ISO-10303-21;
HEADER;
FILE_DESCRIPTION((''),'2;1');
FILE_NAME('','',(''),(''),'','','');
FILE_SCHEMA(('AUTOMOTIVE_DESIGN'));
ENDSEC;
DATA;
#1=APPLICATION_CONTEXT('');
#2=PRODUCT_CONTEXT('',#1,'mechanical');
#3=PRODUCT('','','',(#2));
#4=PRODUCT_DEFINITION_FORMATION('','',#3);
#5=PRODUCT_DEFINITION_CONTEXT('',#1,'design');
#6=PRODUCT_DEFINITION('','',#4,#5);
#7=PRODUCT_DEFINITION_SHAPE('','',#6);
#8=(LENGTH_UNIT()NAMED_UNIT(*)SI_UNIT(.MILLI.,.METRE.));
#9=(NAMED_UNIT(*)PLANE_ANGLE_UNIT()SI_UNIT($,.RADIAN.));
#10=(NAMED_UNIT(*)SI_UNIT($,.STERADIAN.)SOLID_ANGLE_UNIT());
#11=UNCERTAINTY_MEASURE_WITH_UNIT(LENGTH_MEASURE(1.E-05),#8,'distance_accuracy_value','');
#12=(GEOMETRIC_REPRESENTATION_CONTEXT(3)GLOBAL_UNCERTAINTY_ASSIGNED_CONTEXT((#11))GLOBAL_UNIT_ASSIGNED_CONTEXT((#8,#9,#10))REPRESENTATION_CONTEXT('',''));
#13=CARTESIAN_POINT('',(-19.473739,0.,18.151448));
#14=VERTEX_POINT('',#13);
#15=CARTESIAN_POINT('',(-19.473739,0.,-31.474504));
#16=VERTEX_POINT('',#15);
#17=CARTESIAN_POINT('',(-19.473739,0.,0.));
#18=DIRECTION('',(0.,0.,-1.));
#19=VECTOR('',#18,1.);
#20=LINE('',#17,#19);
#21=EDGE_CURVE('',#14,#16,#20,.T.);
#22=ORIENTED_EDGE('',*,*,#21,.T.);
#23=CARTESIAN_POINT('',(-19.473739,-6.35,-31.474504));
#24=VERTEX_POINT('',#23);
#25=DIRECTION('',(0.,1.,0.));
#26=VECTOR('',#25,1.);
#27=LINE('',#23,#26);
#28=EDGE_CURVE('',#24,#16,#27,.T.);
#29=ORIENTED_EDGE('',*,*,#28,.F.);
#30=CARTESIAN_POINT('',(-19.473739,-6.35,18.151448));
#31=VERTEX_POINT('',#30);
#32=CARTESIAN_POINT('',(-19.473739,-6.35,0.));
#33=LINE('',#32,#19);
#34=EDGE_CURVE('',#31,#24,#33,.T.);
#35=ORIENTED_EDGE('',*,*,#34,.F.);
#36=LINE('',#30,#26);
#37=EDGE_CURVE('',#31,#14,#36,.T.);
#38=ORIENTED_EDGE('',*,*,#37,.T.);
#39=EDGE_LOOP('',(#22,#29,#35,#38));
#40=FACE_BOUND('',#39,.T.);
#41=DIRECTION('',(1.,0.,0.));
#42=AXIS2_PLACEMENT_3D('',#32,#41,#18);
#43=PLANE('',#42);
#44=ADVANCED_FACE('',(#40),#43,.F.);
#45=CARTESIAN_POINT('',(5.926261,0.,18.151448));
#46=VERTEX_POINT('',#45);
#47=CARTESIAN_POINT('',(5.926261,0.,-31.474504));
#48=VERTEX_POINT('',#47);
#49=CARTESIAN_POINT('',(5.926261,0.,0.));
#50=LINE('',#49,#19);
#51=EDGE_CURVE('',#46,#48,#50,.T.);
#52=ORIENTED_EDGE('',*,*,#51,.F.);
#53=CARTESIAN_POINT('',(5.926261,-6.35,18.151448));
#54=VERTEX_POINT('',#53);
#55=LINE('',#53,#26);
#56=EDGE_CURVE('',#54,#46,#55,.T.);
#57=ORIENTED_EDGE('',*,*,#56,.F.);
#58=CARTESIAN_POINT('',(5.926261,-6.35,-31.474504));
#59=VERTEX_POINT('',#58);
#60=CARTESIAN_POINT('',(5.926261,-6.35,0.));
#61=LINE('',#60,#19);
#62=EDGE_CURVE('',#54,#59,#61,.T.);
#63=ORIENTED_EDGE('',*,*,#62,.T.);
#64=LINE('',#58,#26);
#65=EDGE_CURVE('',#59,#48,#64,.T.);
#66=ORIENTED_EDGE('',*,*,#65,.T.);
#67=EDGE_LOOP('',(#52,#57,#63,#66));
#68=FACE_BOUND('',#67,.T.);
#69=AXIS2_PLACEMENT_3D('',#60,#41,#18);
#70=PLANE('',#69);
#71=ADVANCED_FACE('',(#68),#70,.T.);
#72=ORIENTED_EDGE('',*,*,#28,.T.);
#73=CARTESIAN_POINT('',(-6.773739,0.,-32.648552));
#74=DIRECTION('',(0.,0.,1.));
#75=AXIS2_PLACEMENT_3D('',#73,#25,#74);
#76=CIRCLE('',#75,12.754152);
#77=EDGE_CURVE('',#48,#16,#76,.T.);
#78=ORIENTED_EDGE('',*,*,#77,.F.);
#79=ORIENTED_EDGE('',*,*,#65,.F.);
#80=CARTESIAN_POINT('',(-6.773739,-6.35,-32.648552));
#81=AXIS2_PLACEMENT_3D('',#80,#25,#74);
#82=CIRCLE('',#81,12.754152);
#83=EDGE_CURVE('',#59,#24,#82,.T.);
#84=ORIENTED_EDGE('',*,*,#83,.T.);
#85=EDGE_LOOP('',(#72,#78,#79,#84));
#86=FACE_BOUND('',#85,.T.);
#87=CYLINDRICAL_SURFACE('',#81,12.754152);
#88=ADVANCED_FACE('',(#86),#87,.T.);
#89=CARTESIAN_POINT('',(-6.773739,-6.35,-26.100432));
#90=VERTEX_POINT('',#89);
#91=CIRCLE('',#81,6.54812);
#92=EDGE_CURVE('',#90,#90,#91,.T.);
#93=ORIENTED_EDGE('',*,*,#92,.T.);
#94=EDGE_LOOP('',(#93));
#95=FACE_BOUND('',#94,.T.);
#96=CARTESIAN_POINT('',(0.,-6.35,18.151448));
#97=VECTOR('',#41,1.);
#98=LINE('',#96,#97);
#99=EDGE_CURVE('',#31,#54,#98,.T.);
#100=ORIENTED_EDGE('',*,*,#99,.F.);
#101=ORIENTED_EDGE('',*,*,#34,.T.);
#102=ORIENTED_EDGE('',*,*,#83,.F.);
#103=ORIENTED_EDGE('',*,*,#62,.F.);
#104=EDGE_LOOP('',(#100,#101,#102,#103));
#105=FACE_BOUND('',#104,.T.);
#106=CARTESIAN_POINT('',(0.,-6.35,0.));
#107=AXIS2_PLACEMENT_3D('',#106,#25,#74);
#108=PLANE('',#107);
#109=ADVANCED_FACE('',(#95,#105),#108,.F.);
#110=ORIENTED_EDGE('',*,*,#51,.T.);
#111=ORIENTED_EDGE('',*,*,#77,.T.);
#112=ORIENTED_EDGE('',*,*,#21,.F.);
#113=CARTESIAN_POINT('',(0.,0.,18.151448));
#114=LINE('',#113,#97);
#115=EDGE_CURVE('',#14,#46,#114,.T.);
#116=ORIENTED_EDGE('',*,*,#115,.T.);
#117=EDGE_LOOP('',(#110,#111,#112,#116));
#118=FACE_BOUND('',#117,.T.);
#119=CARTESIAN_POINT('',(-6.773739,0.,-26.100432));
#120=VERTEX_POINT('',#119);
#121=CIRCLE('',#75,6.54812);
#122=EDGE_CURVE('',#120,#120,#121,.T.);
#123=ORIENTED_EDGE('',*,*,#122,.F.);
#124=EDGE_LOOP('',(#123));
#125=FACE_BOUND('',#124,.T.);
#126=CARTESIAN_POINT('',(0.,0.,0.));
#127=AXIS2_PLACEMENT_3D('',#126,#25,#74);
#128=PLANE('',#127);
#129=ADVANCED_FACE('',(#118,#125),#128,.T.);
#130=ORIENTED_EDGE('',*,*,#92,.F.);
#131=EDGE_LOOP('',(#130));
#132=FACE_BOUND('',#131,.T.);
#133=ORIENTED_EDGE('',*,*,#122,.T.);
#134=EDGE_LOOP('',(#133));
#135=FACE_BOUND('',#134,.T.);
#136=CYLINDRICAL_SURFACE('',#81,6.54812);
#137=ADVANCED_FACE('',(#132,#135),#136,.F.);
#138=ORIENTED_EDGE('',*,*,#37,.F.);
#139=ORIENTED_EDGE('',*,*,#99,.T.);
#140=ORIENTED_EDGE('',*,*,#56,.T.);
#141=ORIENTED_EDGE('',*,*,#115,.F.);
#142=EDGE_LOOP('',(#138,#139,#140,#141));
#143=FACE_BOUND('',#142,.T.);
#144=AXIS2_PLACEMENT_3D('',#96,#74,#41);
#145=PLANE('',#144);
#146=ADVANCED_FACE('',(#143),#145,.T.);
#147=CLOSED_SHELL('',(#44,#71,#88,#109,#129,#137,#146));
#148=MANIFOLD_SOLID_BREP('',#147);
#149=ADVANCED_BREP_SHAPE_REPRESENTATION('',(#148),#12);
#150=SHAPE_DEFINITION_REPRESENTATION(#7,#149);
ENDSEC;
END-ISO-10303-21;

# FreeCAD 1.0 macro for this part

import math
import FreeCAD as App
import Part
import Sketcher

V = App.Vector
Q = App.Units.Quantity

doc = App.newDocument("Part")
body = doc.addObject("PartDesign::Body", "Body")

sketch1 = body.newObject("Sketcher::SketchObject", "Sketch")
sketch1.AttachmentSupport = (doc.getObject("XZ_Plane"), [""])
sketch1.MapMode = "FlatFace"
sketch1.addGeometry([
    Part.LineSegment(V(-19, -31, 0), V(-19, 18, 0)),
    Part.LineSegment(V(-19, 18, 0), V(6, 18, 0)),
    Part.LineSegment(V(6, 18, 0), V(6, -31, 0)),
    Part.ArcOfCircle(Part.Circle(V(-7, -33, 0), V(0, 0, 1), 13), math.radians(175), math.radians(365)),
    Part.Circle(V(-7, -33, 0), V(0, 0, 1), 7),
], False)
sketch1.addConstraint([
    Sketcher.Constraint("Coincident", 0, 2, 1, 1),
    Sketcher.Constraint("Coincident", 1, 2, 2, 1),
    Sketcher.Constraint("Coincident", 2, 2, 3, 2),
    Sketcher.Constraint("Coincident", 3, 1, 0, 1),
    Sketcher.Constraint("Vertical", 0),
    Sketcher.Constraint("Horizontal", 1),
    Sketcher.Constraint("Vertical", 2),
    Sketcher.Constraint("Coincident", 4, 3, 3, 3),
    Sketcher.Constraint("Horizontal", 2, 2, 3, 1),
    Sketcher.Constraint("DistanceX", 1, 1, 1, 2, Q("1 in")),
    Sketcher.Constraint("DistanceY", 3, 3, 0, 2, Q("2 in")),
    Sketcher.Constraint("Diameter", 4, Q("0.5156 in")),
    Sketcher.Constraint("Radius", 3, Q("12.754152 mm")),
    Sketcher.Constraint("DistanceX", 3, 3, -1, 1, Q("6.773739 mm")),
    Sketcher.Constraint("DistanceY", 3, 3, -1, 1, Q("32.648552 mm")),
])
pad1 = body.newObject("PartDesign::Pad", "Pad")
pad1.Profile = sketch1
pad1.Length = Q("0.25 in")

doc.recompute()
